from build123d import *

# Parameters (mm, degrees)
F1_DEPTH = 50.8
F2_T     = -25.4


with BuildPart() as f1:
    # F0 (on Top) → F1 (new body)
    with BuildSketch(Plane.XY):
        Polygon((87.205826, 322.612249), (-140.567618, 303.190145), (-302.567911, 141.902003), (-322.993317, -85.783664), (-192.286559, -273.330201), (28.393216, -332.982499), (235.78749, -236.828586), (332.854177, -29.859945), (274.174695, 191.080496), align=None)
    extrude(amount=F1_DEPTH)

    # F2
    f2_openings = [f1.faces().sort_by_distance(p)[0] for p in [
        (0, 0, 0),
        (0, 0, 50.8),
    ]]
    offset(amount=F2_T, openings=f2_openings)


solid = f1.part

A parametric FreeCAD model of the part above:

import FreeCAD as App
import Part
import Sketcher

V = App.Vector
Q = App.Units.Quantity


def faces_at(feature, points):
    """Names of the faces that lie closest to the given points."""
    faces = feature.Shape.Faces
    near = lambda p: min(range(len(faces)), key=lambda i: faces[i].distToShape(Part.Vertex(*p))[0])
    return sorted({f"Face{near(p) + 1}" for p in points})


def add_polygon(sketch, points):
    """Adds a closed chain of lines whose ends are joined by coincident constraints."""
    first, n = sketch.GeometryCount, len(points)
    for a, b in zip(points, points[1:] + points[:1]):
        sketch.addGeometry(Part.LineSegment(App.Vector(*a, 0), App.Vector(*b, 0)), False)
    for i in range(n):
        sketch.addConstraint(Sketcher.Constraint("Coincident", first + i, 2, first + (i + 1) % n, 1))

doc = App.newDocument("Part")
body = doc.addObject("PartDesign::Body", "Body")

# Sketch on XY plane
sketch1 = doc.addObject("Sketcher::SketchObject", "Sketch")
body.addObject(sketch1)
sketch1.AttachmentSupport = (doc.XY_Plane, [""])
sketch1.MapMode = "FlatFace"
add_polygon(sketch1, [(87.205826, 322.612249), (-140.567618, 303.190145), (-302.567911, 141.902003), (-322.993317, -85.783664), (-192.286559, -273.330201), (28.393216, -332.982499), (235.78749, -236.828586), (332.854177, -29.859945), (274.174695, 191.080496)])  # lines 0-8
sketch1.addConstraint([
    Sketcher.Constraint("Equal", 0, 1),
    Sketcher.Constraint("Equal", 1, 2),
    Sketcher.Constraint("Equal", 2, 3),
    Sketcher.Constraint("Equal", 3, 4),
    Sketcher.Constraint("Equal", 4, 5),
    Sketcher.Constraint("Equal", 5, 6),
    Sketcher.Constraint("Equal", 6, 7),
    Sketcher.Constraint("Equal", 7, 8),
    Sketcher.Constraint("Distance", 0, Q("9 in")),
    Sketcher.Constraint("DistanceY", 3, 2, -1, 1, Q("273.330201 mm")),
    Sketcher.Constraint("DistanceY", 4, 2, -1, 1, Q("332.982499 mm")),
    Sketcher.Constraint("DistanceX", 2, 2, 0, 2, Q("182.425699 mm")),
    Sketcher.Constraint("DistanceY", 4, 2, 1, 2, Q("474.884502 mm")),
    Sketcher.Constraint("DistanceX", 1, 2, 5, 2, Q("538.355401 mm")),
    Sketcher.Constraint("DistanceX", 0, 2, -1, 1, Q("140.567618 mm")),
    Sketcher.Constraint("DistanceX", 1, 2, -1, 1, Q("302.567911 mm")),
    Sketcher.Constraint("DistanceY", -1, 1, 8, 2, Q("322.612249 mm")),
    Sketcher.Constraint("DistanceY", 5, 2, 6, 2, Q("206.968641 mm")),
])
pad1 = doc.addObject("PartDesign::Pad", "Pad")
body.addObject(pad1)
pad1.Profile = sketch1
pad1.Length = Q("2 in")
doc.recompute()

thickness = doc.addObject("PartDesign::Thickness", "Thickness")
body.addObject(thickness)
thickness.Base = (pad1, faces_at(pad1, [(4.93, -5.185, 0), (4.93, -5.185, 50.8)]))
thickness.Value = Q("1 in")
thickness.Reversed = True
thickness.Join = "Arc"

doc.recompute()
